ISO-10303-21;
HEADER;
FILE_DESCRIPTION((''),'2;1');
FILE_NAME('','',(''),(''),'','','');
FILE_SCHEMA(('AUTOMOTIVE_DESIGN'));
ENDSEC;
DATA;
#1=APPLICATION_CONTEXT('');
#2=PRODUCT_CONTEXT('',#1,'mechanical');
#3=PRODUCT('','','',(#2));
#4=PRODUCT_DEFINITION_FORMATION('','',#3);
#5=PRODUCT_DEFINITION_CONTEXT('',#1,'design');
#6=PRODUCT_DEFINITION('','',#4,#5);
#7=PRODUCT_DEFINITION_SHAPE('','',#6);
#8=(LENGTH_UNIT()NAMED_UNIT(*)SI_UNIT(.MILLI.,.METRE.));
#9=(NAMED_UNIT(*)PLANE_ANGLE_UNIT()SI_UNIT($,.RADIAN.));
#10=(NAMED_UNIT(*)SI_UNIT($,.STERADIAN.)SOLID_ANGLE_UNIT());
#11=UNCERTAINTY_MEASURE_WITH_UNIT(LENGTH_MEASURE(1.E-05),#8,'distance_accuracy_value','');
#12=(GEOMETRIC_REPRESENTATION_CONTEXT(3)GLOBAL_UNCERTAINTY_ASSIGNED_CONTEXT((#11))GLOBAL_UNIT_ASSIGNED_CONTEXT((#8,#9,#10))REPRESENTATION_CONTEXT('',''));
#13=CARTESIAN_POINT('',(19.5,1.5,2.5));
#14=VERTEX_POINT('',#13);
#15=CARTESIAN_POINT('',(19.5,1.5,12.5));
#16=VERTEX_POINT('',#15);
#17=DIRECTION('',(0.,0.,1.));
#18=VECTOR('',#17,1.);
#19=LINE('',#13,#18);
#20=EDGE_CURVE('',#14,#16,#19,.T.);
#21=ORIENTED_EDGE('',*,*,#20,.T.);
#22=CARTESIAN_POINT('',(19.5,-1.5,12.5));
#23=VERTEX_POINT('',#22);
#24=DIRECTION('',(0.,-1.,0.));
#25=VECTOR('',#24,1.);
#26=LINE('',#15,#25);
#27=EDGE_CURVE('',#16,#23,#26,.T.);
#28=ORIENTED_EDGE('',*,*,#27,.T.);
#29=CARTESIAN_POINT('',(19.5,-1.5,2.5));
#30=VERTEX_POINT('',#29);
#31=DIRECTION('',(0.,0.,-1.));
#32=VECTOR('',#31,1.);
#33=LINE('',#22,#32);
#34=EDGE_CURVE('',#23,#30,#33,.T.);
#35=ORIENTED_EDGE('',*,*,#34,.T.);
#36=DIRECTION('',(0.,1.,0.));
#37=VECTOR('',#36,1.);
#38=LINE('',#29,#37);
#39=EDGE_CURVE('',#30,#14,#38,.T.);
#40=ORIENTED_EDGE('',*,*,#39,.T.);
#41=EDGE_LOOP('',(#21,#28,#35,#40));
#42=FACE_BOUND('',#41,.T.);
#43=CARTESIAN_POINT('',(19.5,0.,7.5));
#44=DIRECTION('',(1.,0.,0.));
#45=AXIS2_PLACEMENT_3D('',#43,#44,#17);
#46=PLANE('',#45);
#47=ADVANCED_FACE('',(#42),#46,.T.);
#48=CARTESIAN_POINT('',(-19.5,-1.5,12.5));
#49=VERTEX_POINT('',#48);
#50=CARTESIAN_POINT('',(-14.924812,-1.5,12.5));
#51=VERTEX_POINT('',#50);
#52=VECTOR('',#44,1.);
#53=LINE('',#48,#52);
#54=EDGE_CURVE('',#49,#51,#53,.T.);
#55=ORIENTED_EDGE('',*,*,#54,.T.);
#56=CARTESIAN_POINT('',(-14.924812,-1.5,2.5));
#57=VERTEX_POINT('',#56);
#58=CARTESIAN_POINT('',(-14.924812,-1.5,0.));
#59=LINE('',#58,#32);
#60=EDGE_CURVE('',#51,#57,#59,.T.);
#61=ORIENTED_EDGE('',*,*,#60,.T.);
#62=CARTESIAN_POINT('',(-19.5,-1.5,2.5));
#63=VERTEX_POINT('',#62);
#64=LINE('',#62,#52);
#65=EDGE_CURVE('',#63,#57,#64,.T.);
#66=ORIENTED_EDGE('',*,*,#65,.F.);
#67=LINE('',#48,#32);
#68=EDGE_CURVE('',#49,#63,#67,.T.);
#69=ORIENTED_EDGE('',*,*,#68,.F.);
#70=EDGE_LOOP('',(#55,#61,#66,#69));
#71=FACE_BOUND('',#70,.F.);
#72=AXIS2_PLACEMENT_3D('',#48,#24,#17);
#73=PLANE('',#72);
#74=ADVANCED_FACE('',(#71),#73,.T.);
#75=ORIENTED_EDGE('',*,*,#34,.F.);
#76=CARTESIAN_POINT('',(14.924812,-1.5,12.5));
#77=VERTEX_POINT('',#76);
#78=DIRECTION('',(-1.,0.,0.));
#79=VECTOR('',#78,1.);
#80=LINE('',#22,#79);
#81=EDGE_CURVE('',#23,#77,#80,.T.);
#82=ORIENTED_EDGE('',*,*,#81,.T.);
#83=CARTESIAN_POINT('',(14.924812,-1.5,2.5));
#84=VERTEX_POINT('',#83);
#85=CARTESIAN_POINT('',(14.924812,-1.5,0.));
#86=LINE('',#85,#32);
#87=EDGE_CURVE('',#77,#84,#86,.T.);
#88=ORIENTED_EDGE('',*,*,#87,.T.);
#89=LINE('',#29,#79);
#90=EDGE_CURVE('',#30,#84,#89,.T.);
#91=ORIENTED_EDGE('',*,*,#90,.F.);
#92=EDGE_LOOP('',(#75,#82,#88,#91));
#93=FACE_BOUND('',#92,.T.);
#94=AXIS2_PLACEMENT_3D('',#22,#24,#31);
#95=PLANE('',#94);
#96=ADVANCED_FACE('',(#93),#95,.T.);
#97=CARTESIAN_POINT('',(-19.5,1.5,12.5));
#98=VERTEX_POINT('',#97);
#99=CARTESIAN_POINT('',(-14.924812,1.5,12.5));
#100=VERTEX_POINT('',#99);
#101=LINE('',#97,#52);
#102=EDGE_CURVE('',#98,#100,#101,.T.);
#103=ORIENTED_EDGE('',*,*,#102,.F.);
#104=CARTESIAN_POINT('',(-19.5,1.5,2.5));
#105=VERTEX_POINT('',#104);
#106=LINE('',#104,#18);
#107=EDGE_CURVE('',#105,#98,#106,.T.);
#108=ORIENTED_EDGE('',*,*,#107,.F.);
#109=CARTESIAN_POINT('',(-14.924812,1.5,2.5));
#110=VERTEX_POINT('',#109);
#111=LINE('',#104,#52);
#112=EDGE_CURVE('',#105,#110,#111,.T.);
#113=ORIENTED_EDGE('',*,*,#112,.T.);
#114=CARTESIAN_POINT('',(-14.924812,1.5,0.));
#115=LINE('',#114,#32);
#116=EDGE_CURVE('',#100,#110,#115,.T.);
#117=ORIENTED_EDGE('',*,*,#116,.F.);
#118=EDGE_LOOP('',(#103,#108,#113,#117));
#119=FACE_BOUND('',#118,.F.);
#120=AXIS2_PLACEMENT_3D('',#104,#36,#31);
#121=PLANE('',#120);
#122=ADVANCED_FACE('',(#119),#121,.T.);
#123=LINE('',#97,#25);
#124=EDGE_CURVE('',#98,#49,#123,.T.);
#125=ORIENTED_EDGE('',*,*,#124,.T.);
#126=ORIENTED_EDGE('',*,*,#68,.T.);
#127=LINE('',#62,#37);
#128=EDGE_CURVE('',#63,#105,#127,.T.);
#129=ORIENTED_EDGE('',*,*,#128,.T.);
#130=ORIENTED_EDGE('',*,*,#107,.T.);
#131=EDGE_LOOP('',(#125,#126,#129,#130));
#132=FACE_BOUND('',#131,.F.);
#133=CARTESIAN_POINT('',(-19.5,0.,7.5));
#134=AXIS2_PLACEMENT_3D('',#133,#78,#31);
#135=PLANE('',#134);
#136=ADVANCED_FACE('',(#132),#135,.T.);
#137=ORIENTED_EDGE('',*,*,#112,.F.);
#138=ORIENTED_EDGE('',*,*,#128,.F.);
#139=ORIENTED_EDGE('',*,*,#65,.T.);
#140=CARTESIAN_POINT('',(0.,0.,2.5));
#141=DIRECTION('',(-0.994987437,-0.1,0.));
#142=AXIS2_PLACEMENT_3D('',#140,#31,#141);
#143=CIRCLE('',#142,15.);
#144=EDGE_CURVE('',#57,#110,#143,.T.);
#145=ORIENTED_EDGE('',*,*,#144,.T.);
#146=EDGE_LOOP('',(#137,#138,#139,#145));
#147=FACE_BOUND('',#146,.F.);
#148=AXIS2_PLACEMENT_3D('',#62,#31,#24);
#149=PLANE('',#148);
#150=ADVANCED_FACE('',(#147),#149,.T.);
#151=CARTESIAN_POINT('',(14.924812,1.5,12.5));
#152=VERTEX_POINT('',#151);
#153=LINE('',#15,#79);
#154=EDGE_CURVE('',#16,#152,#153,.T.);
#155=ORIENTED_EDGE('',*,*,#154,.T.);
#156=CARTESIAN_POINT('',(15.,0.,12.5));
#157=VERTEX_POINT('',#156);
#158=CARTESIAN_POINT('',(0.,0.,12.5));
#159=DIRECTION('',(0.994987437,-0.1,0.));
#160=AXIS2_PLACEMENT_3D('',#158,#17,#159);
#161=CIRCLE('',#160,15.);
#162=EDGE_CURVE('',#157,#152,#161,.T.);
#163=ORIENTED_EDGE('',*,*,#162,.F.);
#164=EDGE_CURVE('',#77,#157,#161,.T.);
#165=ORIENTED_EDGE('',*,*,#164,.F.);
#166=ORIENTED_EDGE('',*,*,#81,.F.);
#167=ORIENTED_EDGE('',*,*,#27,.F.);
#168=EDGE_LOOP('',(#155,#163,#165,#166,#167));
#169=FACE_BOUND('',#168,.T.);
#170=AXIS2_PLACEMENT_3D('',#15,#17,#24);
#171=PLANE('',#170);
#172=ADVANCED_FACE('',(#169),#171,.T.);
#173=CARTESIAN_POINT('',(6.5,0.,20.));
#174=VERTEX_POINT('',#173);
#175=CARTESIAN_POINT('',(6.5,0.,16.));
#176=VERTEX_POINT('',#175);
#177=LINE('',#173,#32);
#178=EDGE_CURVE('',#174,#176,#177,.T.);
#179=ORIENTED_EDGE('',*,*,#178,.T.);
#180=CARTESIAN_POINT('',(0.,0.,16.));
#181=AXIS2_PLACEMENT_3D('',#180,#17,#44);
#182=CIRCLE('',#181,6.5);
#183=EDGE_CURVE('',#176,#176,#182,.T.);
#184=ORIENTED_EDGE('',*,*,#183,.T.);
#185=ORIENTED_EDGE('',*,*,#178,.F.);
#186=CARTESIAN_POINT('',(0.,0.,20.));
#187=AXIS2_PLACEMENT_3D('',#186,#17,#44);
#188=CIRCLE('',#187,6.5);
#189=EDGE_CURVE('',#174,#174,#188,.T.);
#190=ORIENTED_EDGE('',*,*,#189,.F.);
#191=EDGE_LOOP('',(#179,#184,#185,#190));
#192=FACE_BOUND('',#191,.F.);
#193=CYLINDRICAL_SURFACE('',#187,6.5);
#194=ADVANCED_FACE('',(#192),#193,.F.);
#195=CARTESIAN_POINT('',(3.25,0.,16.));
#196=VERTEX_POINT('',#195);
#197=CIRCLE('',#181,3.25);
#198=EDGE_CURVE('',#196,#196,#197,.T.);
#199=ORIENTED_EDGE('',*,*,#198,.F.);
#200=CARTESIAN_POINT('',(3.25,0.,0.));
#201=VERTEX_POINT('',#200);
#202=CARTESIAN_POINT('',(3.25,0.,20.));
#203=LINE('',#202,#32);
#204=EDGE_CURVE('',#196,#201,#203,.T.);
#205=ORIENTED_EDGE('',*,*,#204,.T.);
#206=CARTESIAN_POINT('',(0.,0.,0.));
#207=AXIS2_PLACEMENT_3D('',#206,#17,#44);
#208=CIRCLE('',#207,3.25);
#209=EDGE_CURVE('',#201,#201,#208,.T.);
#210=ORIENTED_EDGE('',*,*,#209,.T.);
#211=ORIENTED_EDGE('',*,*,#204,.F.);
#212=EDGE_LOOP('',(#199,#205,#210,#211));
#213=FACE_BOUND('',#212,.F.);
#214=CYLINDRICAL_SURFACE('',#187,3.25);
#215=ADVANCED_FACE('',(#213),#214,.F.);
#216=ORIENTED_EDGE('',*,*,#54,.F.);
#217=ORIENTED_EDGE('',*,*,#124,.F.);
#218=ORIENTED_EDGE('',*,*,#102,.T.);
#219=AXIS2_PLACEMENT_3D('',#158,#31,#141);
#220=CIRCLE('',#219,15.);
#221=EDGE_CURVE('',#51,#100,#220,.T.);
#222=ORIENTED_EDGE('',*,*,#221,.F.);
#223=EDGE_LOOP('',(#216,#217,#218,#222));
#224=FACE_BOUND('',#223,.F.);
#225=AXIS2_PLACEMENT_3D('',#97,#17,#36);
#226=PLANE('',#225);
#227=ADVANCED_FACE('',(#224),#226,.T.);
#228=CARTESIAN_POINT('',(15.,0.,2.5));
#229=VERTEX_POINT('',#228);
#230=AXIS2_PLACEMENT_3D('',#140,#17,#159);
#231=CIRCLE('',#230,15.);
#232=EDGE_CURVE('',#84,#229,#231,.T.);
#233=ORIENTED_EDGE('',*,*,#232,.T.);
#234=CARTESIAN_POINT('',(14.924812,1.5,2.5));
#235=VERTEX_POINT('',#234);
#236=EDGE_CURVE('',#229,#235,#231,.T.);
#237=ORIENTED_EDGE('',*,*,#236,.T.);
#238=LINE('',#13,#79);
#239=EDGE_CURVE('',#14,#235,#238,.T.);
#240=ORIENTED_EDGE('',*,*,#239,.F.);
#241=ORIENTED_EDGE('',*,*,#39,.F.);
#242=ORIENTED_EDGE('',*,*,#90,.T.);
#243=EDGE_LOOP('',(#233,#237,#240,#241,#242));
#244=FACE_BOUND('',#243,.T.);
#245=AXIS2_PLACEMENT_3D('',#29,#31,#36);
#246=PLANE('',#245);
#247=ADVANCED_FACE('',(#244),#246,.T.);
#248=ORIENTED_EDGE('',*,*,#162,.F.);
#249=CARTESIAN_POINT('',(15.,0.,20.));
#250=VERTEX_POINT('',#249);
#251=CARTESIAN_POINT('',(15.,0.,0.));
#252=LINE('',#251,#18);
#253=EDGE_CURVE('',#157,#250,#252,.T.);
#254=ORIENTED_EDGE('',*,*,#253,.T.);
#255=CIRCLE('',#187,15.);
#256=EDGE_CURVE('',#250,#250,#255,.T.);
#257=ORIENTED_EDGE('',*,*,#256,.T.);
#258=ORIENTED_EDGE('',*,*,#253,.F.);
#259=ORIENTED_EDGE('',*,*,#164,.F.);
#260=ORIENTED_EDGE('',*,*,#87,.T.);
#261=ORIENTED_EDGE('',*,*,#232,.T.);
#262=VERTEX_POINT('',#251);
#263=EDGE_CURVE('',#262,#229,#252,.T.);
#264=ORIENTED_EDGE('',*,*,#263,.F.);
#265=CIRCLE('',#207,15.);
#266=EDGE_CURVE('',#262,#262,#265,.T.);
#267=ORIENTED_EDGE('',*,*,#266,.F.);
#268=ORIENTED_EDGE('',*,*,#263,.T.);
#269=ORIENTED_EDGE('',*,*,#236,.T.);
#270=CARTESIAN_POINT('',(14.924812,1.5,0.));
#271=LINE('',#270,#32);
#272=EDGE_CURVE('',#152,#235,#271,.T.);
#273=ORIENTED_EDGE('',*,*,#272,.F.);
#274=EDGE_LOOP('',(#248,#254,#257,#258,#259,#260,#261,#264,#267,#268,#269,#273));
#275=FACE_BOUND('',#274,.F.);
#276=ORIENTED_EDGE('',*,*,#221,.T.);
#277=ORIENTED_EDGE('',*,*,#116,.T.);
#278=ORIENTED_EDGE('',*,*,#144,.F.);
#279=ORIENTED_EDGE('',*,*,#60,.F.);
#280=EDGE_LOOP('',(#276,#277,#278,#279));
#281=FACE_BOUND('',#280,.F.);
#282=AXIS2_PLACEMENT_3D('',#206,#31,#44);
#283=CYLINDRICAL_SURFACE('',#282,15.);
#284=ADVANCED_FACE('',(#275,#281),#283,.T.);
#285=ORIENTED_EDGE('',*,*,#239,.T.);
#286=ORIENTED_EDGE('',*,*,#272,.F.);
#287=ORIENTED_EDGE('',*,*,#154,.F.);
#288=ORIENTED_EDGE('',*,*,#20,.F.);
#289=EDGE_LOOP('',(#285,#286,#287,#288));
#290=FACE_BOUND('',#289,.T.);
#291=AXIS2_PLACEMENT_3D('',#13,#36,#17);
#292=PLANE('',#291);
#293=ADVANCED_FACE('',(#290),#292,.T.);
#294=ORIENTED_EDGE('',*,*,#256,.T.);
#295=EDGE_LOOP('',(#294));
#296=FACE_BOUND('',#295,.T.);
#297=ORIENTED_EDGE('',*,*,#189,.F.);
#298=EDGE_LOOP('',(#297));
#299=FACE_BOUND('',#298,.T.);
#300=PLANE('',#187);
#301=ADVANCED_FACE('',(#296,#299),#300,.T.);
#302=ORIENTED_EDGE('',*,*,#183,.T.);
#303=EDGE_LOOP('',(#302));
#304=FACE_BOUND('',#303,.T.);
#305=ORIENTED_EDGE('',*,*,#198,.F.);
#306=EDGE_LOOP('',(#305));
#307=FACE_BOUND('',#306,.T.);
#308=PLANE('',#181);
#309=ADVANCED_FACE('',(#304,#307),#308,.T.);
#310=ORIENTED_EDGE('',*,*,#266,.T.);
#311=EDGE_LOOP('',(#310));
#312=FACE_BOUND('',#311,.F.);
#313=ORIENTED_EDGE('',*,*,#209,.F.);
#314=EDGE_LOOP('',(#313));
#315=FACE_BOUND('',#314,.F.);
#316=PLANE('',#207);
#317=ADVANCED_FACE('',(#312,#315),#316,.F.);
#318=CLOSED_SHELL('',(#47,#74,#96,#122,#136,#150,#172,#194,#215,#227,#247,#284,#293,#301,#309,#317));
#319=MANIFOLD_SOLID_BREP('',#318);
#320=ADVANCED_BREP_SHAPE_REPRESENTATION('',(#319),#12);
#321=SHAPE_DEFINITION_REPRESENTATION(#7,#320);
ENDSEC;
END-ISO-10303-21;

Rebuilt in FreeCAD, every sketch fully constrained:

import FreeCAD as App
import Part
import Sketcher
Q = App.Units.Quantity


def add_polygon(sketch, points):
    """Adds a closed chain of lines whose ends are joined by coincident constraints."""
    first, n = sketch.GeometryCount, len(points)
    for a, b in zip(points, points[1:] + points[:1]):
        sketch.addGeometry(Part.LineSegment(App.Vector(*a, 0), App.Vector(*b, 0)), False)
    for i in range(n):
        sketch.addConstraint(Sketcher.Constraint("Coincident", first + i, 2, first + (i + 1) % n, 1))

doc = App.newDocument("Part")
body = doc.addObject("PartDesign::Body", "Body")

# Sketch on XY plane
sketch1 = body.newObject("Sketcher::SketchObject", "Sketch")
sketch1.AttachmentSupport = (doc.getObject("XY_Plane"), [""])
sketch1.MapMode = "FlatFace"
sketch1.addGeometry(Part.Circle(App.Vector(0, 0, 0), App.Vector(0, 0, 1), 15), False)
sketch1.addConstraint(Sketcher.Constraint("Coincident", 0, 3, -1, 1))
sketch1.addConstraint(Sketcher.Constraint("Diameter", 0, Q("30 mm")))
pad1 = body.newObject("PartDesign::Pad", "Pad")
pad1.Profile = sketch1
pad1.Length = 20

# Sketch on XY plane
sketch2 = body.newObject("Sketcher::SketchObject", "Sketch001")
sketch2.AttachmentSupport = (doc.getObject("XY_Plane"), [""])
sketch2.MapMode = "FlatFace"
sketch2.AttachmentOffset = App.Placement(App.Vector(0, 0, 20), App.Rotation())
sketch2.addGeometry(Part.Circle(App.Vector(0, 0, 0), App.Vector(0, 0, 1), 3.25), False)
sketch2.addConstraint(Sketcher.Constraint("Coincident", 0, 3, -1, 1))
sketch2.addConstraint(Sketcher.Constraint("Diameter", 0, Q("6.5 mm")))
pocket1 = body.newObject("PartDesign::Pocket", "Pocket")
pocket1.Profile = sketch2
pocket1.Type = "ThroughAll"

# Sketch on YZ plane
sketch3 = body.newObject("Sketcher::SketchObject", "Sketch002")
sketch3.AttachmentSupport = (doc.getObject("YZ_Plane"), [""])
sketch3.MapMode = "FlatFace"
sketch3.AttachmentOffset = App.Placement(App.Vector(0, 0, 19.5), App.Rotation())
add_polygon(sketch3, [(-1.5, 12.5), (-1.5, 2.5), (1.5, 2.5), (1.5, 12.5)])  # lines 0-3
sketch3.addConstraint(Sketcher.Constraint("Vertical", 0))
sketch3.addConstraint(Sketcher.Constraint("Horizontal", 1))
sketch3.addConstraint(Sketcher.Constraint("Vertical", 2))
sketch3.addConstraint(Sketcher.Constraint("Horizontal", 3))
sketch3.addConstraint(Sketcher.Constraint("DistanceX", 0, 2, -1, 1, Q("1.5 mm")))
sketch3.addConstraint(Sketcher.Constraint("DistanceX", -1, 1, 1, 2, Q("1.5 mm")))
sketch3.addConstraint(Sketcher.Constraint("DistanceY", 0, 2, 0, 1, Q("10 mm")))
sketch3.addConstraint(Sketcher.Constraint("DistanceY", -1, 1, 0, 2, Q("2.5 mm")))
pad2 = body.newObject("PartDesign::Pad", "Pad001")
pad2.Profile = sketch3
pad2.Type = "UpToFirst"
pad2.Reversed = True
doc.recompute()

mirrored = body.newObject("PartDesign::Mirrored", "Mirrored")
mirrored.Originals = [pad2]
mirrored.MirrorPlane = (doc.getObject("YZ_Plane"), [""])
body.Tip = mirrored

# Sketch on XY plane
sketch4 = body.newObject("Sketcher::SketchObject", "Sketch003")
sketch4.AttachmentSupport = (doc.getObject("XY_Plane"), [""])
sketch4.MapMode = "FlatFace"
sketch4.AttachmentOffset = App.Placement(App.Vector(0, 0, 20), App.Rotation())
sketch4.addGeometry(Part.Circle(App.Vector(0, 0, 0), App.Vector(0, 0, 1), 6.5), False)
sketch4.addConstraint(Sketcher.Constraint("Coincident", 0, 3, -1, 1))
sketch4.addConstraint(Sketcher.Constraint("Diameter", 0, Q("13 mm")))
pocket2 = body.newObject("PartDesign::Pocket", "Pocket001")
pocket2.Profile = sketch4
pocket2.Length = 4

doc.recompute()
